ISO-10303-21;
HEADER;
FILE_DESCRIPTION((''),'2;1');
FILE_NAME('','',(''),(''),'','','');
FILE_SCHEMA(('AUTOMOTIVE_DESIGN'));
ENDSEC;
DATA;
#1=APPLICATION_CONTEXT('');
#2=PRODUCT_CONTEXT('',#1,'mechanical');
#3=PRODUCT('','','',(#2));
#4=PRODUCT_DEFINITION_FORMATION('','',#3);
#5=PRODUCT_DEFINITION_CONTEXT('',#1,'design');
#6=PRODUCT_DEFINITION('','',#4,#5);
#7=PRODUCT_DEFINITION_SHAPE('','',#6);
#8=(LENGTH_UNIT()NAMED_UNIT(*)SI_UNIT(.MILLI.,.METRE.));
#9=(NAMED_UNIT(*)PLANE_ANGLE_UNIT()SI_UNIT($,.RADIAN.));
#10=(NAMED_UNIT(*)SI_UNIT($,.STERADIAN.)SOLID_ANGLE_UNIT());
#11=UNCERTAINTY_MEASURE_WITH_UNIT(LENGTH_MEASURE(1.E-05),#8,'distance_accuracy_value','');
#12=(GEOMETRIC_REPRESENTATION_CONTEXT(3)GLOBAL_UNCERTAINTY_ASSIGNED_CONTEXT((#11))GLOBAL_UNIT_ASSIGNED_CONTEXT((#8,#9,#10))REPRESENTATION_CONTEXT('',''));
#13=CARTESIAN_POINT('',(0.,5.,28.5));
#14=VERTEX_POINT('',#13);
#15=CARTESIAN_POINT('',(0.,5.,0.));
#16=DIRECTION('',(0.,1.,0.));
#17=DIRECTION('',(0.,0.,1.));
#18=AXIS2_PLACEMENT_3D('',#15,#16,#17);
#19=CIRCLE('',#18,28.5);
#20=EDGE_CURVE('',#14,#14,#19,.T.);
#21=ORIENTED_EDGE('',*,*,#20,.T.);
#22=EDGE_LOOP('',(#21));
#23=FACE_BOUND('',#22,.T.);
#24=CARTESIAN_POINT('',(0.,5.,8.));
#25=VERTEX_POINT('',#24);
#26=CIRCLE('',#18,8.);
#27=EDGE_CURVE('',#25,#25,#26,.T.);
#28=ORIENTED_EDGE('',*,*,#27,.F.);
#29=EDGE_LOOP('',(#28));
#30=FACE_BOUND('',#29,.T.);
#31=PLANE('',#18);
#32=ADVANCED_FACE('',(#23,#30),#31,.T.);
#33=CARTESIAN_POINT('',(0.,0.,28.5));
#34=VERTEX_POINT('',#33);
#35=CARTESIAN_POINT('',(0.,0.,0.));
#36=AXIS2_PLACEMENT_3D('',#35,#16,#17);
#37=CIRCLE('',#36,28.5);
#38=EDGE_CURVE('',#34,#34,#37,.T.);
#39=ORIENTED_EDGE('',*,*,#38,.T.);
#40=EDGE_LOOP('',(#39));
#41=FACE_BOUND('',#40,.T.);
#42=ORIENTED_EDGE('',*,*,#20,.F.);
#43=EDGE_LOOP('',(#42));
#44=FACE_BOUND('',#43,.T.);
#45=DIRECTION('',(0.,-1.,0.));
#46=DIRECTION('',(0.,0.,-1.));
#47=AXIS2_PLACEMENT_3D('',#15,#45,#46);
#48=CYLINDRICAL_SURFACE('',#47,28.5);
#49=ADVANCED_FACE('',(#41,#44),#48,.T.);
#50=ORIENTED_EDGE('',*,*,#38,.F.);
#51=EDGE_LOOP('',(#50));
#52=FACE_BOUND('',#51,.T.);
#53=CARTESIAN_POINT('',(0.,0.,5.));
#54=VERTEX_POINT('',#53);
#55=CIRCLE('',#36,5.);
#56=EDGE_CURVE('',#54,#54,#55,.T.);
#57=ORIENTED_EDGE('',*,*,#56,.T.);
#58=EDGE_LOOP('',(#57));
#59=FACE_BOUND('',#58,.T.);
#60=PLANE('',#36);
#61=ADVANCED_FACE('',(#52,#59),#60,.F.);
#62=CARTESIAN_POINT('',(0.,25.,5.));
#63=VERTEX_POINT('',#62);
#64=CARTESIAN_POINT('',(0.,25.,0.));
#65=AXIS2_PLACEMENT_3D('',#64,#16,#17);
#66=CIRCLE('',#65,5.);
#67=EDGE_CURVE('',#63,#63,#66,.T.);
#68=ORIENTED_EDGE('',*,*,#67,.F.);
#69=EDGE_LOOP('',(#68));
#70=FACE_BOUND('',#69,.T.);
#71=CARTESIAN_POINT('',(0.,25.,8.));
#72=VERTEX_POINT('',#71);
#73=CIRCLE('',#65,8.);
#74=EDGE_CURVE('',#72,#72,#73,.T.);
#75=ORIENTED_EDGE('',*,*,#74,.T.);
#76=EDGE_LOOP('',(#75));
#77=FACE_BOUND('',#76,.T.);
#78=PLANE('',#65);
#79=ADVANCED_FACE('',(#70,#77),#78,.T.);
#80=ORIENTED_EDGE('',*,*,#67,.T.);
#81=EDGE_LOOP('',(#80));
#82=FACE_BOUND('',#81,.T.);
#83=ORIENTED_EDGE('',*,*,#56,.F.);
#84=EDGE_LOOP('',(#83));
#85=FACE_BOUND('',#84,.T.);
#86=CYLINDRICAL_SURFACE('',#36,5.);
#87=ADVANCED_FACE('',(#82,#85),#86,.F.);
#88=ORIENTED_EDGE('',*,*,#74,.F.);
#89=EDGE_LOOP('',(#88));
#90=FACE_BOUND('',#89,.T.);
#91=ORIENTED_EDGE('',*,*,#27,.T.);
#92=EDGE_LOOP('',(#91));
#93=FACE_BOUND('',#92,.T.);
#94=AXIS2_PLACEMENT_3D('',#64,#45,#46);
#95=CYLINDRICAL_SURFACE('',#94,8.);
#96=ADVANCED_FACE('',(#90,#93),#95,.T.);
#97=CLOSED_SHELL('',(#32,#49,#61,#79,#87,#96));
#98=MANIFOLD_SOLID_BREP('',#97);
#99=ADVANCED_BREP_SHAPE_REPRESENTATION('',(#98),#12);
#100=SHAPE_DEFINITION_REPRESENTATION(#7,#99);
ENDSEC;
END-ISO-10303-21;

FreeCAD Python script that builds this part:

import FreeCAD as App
import Part
import Sketcher
from FreeCAD import Vector
Q = App.Units.Quantity

doc = App.newDocument("Part")
params = doc.addObject("Spreadsheet::Sheet", "Params")
for row, (alias, value) in enumerate([
    ("sketch1_diameter", "57 mm"),
    ("pad1_length", "5 mm"),
    ("sketch2_diameter", "16 mm"),
    ("pad2_length", "20 mm"),
    ("sketch3_diameter", "10 mm"),
], start=1):
    params.set(f"A{row}", alias)
    params.set(f"B{row}", "=" + value)
    params.setAlias(f"B{row}", alias)

body = doc.addObject("PartDesign::Body", "Body")

# Sketch on XZ plane
sketch1 = doc.addObject("Sketcher::SketchObject", "Sketch")
body.addObject(sketch1)
sketch1.AttachmentSupport = (doc.XZ_Plane, [""])
sketch1.MapMode = "FlatFace"
sketch1.addGeometry(Part.Circle(Vector(0, 0, 0), Vector(0, 0, 1), 28.5), False)
sketch1.addConstraint([
    Sketcher.Constraint("Coincident", 0, 3, -1, 1),
    Sketcher.Constraint("Diameter", 0, Q("57 mm")),
])
sketch1.setExpression("Constraints[1]", "Params.sketch1_diameter")
pad1 = doc.addObject("PartDesign::Pad", "Pad")
body.addObject(pad1)
pad1.Profile = sketch1
pad1.setExpression("Length", "Params.pad1_length")
pad1.Reversed = True

# Sketch on XZ plane
sketch2 = doc.addObject("Sketcher::SketchObject", "Sketch001")
body.addObject(sketch2)
sketch2.AttachmentSupport = (doc.XZ_Plane, [""])
sketch2.MapMode = "FlatFace"
sketch2.AttachmentOffset = App.Placement(Vector(0, 0, -5), App.Rotation())
sketch2.addGeometry(Part.Circle(Vector(0, 0, 0), Vector(0, 0, 1), 8), False)
sketch2.addConstraint([
    Sketcher.Constraint("Coincident", 0, 3, -1, 1),
    Sketcher.Constraint("Diameter", 0, Q("16 mm")),
])
sketch2.setExpression("Constraints[1]", "Params.sketch2_diameter")
pad2 = doc.addObject("PartDesign::Pad", "Pad001")
body.addObject(pad2)
pad2.Profile = sketch2
pad2.setExpression("Length", "Params.pad2_length")
pad2.Reversed = True

# Sketch on XZ plane
sketch3 = doc.addObject("Sketcher::SketchObject", "Sketch002")
body.addObject(sketch3)
sketch3.AttachmentSupport = (doc.XZ_Plane, [""])
sketch3.MapMode = "FlatFace"
sketch3.AttachmentOffset = App.Placement(Vector(0, 0, -25), App.Rotation())
sketch3.addGeometry(Part.Circle(Vector(0, 0, 0), Vector(0, 0, 1), 5), False)
sketch3.addConstraint([
    Sketcher.Constraint("Coincident", 0, 3, -1, 1),
    Sketcher.Constraint("Diameter", 0, Q("10 mm")),
])
sketch3.setExpression("Constraints[1]", "Params.sketch3_diameter")
pocket1 = doc.addObject("PartDesign::Pocket", "Pocket")
body.addObject(pocket1)
pocket1.Profile = sketch3
pocket1.Type = "ThroughAll"
pocket1.Reversed = True

doc.recompute()
